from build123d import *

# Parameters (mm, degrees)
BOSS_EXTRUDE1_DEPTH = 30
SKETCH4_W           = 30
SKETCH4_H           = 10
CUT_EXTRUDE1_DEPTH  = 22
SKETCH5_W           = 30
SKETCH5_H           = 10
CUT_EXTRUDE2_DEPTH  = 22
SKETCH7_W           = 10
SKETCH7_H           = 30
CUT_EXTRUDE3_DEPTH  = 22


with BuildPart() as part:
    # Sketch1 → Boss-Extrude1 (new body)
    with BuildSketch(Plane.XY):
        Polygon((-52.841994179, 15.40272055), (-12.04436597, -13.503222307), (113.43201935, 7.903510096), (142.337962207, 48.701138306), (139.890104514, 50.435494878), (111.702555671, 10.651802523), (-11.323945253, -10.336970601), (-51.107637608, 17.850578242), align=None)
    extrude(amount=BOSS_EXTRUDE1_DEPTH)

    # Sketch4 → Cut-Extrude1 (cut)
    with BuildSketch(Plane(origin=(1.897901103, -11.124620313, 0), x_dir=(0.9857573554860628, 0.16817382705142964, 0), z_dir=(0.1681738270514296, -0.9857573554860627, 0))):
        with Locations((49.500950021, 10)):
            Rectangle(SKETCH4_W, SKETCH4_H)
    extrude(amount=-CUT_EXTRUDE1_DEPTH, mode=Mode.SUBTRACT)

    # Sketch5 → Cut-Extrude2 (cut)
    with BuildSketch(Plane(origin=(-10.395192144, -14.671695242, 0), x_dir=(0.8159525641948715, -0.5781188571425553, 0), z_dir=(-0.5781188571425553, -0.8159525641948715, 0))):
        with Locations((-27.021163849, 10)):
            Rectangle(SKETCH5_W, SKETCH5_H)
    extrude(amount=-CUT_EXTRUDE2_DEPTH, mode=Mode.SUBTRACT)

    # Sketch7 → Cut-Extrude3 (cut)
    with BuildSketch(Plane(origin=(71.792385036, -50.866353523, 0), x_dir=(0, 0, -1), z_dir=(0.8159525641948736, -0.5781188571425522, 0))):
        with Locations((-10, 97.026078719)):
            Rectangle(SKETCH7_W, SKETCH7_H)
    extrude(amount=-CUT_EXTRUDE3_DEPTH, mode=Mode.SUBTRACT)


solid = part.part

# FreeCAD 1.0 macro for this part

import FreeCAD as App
import Part
import Sketcher
from FreeCAD import Vector
Q = App.Units.Quantity

doc = App.newDocument("Part")
body = doc.addObject("PartDesign::Body", "Body")

# Sketch on XY plane
sketch1 = doc.addObject("Sketcher::SketchObject", "Sketch")
body.addObject(sketch1)
sketch1.AttachmentSupport = (doc.XY_Plane, [""])
sketch1.MapMode = "FlatFace"
sketch1.addGeometry([
    Part.LineSegment(Vector(-52.8, 15.4, 0), Vector(-12, -13.5, 0)),  # 0
    Part.LineSegment(Vector(-12, -13.5, 0), Vector(113.4, 7.9, 0)),  # 1
    Part.LineSegment(Vector(113.4, 7.9, 0), Vector(142.3, 48.7, 0)),  # 2
    Part.LineSegment(Vector(142.3, 48.7, 0), Vector(139.9, 50.4, 0)),  # 3
    Part.LineSegment(Vector(139.9, 50.4, 0), Vector(111.7, 10.7, 0)),  # 4
    Part.LineSegment(Vector(111.7, 10.7, 0), Vector(-11.3, -10.3, 0)),  # 5
    Part.LineSegment(Vector(-11.3, -10.3, 0), Vector(-51.1, 17.9, 0)),  # 6
    Part.LineSegment(Vector(-51.1, 17.9, 0), Vector(-52.8, 15.4, 0)),  # 7
], False)
sketch1.addConstraint([
    Sketcher.Constraint("Coincident", 0, 2, 1, 1),
    Sketcher.Constraint("Coincident", 1, 2, 2, 1),
    Sketcher.Constraint("Coincident", 2, 2, 3, 1),
    Sketcher.Constraint("Coincident", 3, 2, 4, 1),
    Sketcher.Constraint("Coincident", 4, 2, 5, 1),
    Sketcher.Constraint("Coincident", 5, 2, 6, 1),
    Sketcher.Constraint("Coincident", 6, 2, 7, 1),
    Sketcher.Constraint("Coincident", 7, 2, 0, 1),
    Sketcher.Constraint("Perpendicular", 0, 2),
    Sketcher.Constraint("Perpendicular", 2, 3),
    Sketcher.Constraint("Perpendicular", 3, 4),
    Sketcher.Constraint("Parallel", 1, 5),
    Sketcher.Constraint("Perpendicular", 4, 6),
    Sketcher.Constraint("Perpendicular", 6, 7),
    Sketcher.Constraint("Equal", 0, 2),
    Sketcher.Constraint("Equal", 4, 6),
    Sketcher.Constraint("Equal", 3, 7),
    Sketcher.Constraint("Distance", 0, Q("50 mm")),
    Sketcher.Constraint("Distance", 3, Q("3 mm")),
    Sketcher.Constraint("DistanceX", 5, 2, 4, 2, Q("123.026501 mm")),
    Sketcher.Constraint("DistanceY", 0, 2, 6, 2, Q("31.353801 mm")),
    Sketcher.Constraint("Distance", 1, Q("127.289322 mm")),
    Sketcher.Constraint("DistanceX", -1, 1, 1, 2, Q("113.432019 mm")),
    Sketcher.Constraint("DistanceY", -1, 1, 1, 2, Q("7.90351 mm")),
])
pad1 = doc.addObject("PartDesign::Pad", "Pad")
body.addObject(pad1)
pad1.Profile = sketch1
pad1.Length = 30

# Sketch on an angled plane
sketch2 = doc.addObject("Sketcher::SketchObject", "Sketch001")
body.addObject(sketch2)
sketch2.Placement = App.Placement(Vector(1.897901, -11.12462, 0), App.Rotation(Vector(0.985757355, 0.168173827, 0), Vector(0, 0, 0.999999999), Vector(0.168173827, -0.985757355, 0), "ZXY"))
sketch2.addGeometry([
    Part.LineSegment(Vector(35, 15, 0), Vector(35, 5, 0)),
    Part.LineSegment(Vector(35, 5, 0), Vector(65, 5, 0)),
    Part.LineSegment(Vector(65, 5, 0), Vector(65, 15, 0)),
    Part.LineSegment(Vector(65, 15, 0), Vector(35, 15, 0)),
], False)
sketch2.addConstraint([
    Sketcher.Constraint("Coincident", 0, 2, 1, 1),
    Sketcher.Constraint("Coincident", 1, 2, 2, 1),
    Sketcher.Constraint("Coincident", 2, 2, 3, 1),
    Sketcher.Constraint("Coincident", 3, 2, 0, 1),
    Sketcher.Constraint("Vertical", 0),
    Sketcher.Constraint("Horizontal", 1),
    Sketcher.Constraint("Vertical", 2),
    Sketcher.Constraint("Horizontal", 3),
    Sketcher.Constraint("DistanceX", 1, 1, 1, 2, Q("30 mm")),
    Sketcher.Constraint("DistanceY", 0, 2, 0, 1, Q("10 mm")),
    Sketcher.Constraint("DistanceY", -1, 1, 0, 2, Q("5 mm")),
    Sketcher.Constraint("DistanceX", -1, 1, 0, 2, Q("34.50095 mm")),
])
pocket1 = doc.addObject("PartDesign::Pocket", "Pocket")
body.addObject(pocket1)
pocket1.Profile = sketch2
pocket1.Length = 22

# Sketch on an angled plane
sketch3 = doc.addObject("Sketcher::SketchObject", "Sketch002")
body.addObject(sketch3)
sketch3.Placement = App.Placement(Vector(-10.395192, -14.671695, 0), App.Rotation(Vector(0.815952564, -0.578118857, 0), Vector(0, 0, 1), Vector(-0.578118857, -0.815952564, 0), "ZXY"))
sketch3.addGeometry([
    Part.LineSegment(Vector(-42, 15, 0), Vector(-42, 5, 0)),
    Part.LineSegment(Vector(-42, 5, 0), Vector(-12, 5, 0)),
    Part.LineSegment(Vector(-12, 5, 0), Vector(-12, 15, 0)),
    Part.LineSegment(Vector(-12, 15, 0), Vector(-42, 15, 0)),
], False)
sketch3.addConstraint([
    Sketcher.Constraint("Coincident", 0, 2, 1, 1),
    Sketcher.Constraint("Coincident", 1, 2, 2, 1),
    Sketcher.Constraint("Coincident", 2, 2, 3, 1),
    Sketcher.Constraint("Coincident", 3, 2, 0, 1),
    Sketcher.Constraint("Vertical", 0),
    Sketcher.Constraint("Horizontal", 1),
    Sketcher.Constraint("Vertical", 2),
    Sketcher.Constraint("Horizontal", 3),
    Sketcher.Constraint("DistanceX", 1, 1, 1, 2, Q("30 mm")),
    Sketcher.Constraint("DistanceY", 0, 2, 0, 1, Q("10 mm")),
    Sketcher.Constraint("DistanceY", -1, 1, 0, 2, Q("5 mm")),
    Sketcher.Constraint("DistanceX", 0, 2, -1, 1, Q("42.021164 mm")),
])
pocket2 = doc.addObject("PartDesign::Pocket", "Pocket001")
body.addObject(pocket2)
pocket2.Profile = sketch3
pocket2.Length = 22

# Sketch on an angled plane
sketch4 = doc.addObject("Sketcher::SketchObject", "Sketch003")
body.addObject(sketch4)
sketch4.Placement = App.Placement(Vector(71.792385, -50.866354, 0), App.Rotation(Vector(0, 0, -1), Vector(0.578118857, 0.815952564, 0), Vector(0.815952564, -0.578118857, 0), "ZXY"))
sketch4.addGeometry([
    Part.LineSegment(Vector(-15, 112, 0), Vector(-15, 82, 0)),
    Part.LineSegment(Vector(-15, 82, 0), Vector(-5, 82, 0)),
    Part.LineSegment(Vector(-5, 82, 0), Vector(-5, 112, 0)),
    Part.LineSegment(Vector(-5, 112, 0), Vector(-15, 112, 0)),
], False)
sketch4.addConstraint([
    Sketcher.Constraint("Coincident", 0, 2, 1, 1),
    Sketcher.Constraint("Coincident", 1, 2, 2, 1),
    Sketcher.Constraint("Coincident", 2, 2, 3, 1),
    Sketcher.Constraint("Coincident", 3, 2, 0, 1),
    Sketcher.Constraint("Vertical", 0),
    Sketcher.Constraint("Horizontal", 1),
    Sketcher.Constraint("Vertical", 2),
    Sketcher.Constraint("Horizontal", 3),
    Sketcher.Constraint("DistanceX", 1, 1, 1, 2, Q("10 mm")),
    Sketcher.Constraint("DistanceY", 0, 2, 0, 1, Q("30 mm")),
    Sketcher.Constraint("DistanceX", 0, 2, -1, 1, Q("15 mm")),
    Sketcher.Constraint("DistanceY", -1, 1, 0, 2, Q("82.026079 mm")),
])
pocket3 = doc.addObject("PartDesign::Pocket", "Pocket002")
body.addObject(pocket3)
pocket3.Profile = sketch4
pocket3.Length = 22

doc.recompute()
